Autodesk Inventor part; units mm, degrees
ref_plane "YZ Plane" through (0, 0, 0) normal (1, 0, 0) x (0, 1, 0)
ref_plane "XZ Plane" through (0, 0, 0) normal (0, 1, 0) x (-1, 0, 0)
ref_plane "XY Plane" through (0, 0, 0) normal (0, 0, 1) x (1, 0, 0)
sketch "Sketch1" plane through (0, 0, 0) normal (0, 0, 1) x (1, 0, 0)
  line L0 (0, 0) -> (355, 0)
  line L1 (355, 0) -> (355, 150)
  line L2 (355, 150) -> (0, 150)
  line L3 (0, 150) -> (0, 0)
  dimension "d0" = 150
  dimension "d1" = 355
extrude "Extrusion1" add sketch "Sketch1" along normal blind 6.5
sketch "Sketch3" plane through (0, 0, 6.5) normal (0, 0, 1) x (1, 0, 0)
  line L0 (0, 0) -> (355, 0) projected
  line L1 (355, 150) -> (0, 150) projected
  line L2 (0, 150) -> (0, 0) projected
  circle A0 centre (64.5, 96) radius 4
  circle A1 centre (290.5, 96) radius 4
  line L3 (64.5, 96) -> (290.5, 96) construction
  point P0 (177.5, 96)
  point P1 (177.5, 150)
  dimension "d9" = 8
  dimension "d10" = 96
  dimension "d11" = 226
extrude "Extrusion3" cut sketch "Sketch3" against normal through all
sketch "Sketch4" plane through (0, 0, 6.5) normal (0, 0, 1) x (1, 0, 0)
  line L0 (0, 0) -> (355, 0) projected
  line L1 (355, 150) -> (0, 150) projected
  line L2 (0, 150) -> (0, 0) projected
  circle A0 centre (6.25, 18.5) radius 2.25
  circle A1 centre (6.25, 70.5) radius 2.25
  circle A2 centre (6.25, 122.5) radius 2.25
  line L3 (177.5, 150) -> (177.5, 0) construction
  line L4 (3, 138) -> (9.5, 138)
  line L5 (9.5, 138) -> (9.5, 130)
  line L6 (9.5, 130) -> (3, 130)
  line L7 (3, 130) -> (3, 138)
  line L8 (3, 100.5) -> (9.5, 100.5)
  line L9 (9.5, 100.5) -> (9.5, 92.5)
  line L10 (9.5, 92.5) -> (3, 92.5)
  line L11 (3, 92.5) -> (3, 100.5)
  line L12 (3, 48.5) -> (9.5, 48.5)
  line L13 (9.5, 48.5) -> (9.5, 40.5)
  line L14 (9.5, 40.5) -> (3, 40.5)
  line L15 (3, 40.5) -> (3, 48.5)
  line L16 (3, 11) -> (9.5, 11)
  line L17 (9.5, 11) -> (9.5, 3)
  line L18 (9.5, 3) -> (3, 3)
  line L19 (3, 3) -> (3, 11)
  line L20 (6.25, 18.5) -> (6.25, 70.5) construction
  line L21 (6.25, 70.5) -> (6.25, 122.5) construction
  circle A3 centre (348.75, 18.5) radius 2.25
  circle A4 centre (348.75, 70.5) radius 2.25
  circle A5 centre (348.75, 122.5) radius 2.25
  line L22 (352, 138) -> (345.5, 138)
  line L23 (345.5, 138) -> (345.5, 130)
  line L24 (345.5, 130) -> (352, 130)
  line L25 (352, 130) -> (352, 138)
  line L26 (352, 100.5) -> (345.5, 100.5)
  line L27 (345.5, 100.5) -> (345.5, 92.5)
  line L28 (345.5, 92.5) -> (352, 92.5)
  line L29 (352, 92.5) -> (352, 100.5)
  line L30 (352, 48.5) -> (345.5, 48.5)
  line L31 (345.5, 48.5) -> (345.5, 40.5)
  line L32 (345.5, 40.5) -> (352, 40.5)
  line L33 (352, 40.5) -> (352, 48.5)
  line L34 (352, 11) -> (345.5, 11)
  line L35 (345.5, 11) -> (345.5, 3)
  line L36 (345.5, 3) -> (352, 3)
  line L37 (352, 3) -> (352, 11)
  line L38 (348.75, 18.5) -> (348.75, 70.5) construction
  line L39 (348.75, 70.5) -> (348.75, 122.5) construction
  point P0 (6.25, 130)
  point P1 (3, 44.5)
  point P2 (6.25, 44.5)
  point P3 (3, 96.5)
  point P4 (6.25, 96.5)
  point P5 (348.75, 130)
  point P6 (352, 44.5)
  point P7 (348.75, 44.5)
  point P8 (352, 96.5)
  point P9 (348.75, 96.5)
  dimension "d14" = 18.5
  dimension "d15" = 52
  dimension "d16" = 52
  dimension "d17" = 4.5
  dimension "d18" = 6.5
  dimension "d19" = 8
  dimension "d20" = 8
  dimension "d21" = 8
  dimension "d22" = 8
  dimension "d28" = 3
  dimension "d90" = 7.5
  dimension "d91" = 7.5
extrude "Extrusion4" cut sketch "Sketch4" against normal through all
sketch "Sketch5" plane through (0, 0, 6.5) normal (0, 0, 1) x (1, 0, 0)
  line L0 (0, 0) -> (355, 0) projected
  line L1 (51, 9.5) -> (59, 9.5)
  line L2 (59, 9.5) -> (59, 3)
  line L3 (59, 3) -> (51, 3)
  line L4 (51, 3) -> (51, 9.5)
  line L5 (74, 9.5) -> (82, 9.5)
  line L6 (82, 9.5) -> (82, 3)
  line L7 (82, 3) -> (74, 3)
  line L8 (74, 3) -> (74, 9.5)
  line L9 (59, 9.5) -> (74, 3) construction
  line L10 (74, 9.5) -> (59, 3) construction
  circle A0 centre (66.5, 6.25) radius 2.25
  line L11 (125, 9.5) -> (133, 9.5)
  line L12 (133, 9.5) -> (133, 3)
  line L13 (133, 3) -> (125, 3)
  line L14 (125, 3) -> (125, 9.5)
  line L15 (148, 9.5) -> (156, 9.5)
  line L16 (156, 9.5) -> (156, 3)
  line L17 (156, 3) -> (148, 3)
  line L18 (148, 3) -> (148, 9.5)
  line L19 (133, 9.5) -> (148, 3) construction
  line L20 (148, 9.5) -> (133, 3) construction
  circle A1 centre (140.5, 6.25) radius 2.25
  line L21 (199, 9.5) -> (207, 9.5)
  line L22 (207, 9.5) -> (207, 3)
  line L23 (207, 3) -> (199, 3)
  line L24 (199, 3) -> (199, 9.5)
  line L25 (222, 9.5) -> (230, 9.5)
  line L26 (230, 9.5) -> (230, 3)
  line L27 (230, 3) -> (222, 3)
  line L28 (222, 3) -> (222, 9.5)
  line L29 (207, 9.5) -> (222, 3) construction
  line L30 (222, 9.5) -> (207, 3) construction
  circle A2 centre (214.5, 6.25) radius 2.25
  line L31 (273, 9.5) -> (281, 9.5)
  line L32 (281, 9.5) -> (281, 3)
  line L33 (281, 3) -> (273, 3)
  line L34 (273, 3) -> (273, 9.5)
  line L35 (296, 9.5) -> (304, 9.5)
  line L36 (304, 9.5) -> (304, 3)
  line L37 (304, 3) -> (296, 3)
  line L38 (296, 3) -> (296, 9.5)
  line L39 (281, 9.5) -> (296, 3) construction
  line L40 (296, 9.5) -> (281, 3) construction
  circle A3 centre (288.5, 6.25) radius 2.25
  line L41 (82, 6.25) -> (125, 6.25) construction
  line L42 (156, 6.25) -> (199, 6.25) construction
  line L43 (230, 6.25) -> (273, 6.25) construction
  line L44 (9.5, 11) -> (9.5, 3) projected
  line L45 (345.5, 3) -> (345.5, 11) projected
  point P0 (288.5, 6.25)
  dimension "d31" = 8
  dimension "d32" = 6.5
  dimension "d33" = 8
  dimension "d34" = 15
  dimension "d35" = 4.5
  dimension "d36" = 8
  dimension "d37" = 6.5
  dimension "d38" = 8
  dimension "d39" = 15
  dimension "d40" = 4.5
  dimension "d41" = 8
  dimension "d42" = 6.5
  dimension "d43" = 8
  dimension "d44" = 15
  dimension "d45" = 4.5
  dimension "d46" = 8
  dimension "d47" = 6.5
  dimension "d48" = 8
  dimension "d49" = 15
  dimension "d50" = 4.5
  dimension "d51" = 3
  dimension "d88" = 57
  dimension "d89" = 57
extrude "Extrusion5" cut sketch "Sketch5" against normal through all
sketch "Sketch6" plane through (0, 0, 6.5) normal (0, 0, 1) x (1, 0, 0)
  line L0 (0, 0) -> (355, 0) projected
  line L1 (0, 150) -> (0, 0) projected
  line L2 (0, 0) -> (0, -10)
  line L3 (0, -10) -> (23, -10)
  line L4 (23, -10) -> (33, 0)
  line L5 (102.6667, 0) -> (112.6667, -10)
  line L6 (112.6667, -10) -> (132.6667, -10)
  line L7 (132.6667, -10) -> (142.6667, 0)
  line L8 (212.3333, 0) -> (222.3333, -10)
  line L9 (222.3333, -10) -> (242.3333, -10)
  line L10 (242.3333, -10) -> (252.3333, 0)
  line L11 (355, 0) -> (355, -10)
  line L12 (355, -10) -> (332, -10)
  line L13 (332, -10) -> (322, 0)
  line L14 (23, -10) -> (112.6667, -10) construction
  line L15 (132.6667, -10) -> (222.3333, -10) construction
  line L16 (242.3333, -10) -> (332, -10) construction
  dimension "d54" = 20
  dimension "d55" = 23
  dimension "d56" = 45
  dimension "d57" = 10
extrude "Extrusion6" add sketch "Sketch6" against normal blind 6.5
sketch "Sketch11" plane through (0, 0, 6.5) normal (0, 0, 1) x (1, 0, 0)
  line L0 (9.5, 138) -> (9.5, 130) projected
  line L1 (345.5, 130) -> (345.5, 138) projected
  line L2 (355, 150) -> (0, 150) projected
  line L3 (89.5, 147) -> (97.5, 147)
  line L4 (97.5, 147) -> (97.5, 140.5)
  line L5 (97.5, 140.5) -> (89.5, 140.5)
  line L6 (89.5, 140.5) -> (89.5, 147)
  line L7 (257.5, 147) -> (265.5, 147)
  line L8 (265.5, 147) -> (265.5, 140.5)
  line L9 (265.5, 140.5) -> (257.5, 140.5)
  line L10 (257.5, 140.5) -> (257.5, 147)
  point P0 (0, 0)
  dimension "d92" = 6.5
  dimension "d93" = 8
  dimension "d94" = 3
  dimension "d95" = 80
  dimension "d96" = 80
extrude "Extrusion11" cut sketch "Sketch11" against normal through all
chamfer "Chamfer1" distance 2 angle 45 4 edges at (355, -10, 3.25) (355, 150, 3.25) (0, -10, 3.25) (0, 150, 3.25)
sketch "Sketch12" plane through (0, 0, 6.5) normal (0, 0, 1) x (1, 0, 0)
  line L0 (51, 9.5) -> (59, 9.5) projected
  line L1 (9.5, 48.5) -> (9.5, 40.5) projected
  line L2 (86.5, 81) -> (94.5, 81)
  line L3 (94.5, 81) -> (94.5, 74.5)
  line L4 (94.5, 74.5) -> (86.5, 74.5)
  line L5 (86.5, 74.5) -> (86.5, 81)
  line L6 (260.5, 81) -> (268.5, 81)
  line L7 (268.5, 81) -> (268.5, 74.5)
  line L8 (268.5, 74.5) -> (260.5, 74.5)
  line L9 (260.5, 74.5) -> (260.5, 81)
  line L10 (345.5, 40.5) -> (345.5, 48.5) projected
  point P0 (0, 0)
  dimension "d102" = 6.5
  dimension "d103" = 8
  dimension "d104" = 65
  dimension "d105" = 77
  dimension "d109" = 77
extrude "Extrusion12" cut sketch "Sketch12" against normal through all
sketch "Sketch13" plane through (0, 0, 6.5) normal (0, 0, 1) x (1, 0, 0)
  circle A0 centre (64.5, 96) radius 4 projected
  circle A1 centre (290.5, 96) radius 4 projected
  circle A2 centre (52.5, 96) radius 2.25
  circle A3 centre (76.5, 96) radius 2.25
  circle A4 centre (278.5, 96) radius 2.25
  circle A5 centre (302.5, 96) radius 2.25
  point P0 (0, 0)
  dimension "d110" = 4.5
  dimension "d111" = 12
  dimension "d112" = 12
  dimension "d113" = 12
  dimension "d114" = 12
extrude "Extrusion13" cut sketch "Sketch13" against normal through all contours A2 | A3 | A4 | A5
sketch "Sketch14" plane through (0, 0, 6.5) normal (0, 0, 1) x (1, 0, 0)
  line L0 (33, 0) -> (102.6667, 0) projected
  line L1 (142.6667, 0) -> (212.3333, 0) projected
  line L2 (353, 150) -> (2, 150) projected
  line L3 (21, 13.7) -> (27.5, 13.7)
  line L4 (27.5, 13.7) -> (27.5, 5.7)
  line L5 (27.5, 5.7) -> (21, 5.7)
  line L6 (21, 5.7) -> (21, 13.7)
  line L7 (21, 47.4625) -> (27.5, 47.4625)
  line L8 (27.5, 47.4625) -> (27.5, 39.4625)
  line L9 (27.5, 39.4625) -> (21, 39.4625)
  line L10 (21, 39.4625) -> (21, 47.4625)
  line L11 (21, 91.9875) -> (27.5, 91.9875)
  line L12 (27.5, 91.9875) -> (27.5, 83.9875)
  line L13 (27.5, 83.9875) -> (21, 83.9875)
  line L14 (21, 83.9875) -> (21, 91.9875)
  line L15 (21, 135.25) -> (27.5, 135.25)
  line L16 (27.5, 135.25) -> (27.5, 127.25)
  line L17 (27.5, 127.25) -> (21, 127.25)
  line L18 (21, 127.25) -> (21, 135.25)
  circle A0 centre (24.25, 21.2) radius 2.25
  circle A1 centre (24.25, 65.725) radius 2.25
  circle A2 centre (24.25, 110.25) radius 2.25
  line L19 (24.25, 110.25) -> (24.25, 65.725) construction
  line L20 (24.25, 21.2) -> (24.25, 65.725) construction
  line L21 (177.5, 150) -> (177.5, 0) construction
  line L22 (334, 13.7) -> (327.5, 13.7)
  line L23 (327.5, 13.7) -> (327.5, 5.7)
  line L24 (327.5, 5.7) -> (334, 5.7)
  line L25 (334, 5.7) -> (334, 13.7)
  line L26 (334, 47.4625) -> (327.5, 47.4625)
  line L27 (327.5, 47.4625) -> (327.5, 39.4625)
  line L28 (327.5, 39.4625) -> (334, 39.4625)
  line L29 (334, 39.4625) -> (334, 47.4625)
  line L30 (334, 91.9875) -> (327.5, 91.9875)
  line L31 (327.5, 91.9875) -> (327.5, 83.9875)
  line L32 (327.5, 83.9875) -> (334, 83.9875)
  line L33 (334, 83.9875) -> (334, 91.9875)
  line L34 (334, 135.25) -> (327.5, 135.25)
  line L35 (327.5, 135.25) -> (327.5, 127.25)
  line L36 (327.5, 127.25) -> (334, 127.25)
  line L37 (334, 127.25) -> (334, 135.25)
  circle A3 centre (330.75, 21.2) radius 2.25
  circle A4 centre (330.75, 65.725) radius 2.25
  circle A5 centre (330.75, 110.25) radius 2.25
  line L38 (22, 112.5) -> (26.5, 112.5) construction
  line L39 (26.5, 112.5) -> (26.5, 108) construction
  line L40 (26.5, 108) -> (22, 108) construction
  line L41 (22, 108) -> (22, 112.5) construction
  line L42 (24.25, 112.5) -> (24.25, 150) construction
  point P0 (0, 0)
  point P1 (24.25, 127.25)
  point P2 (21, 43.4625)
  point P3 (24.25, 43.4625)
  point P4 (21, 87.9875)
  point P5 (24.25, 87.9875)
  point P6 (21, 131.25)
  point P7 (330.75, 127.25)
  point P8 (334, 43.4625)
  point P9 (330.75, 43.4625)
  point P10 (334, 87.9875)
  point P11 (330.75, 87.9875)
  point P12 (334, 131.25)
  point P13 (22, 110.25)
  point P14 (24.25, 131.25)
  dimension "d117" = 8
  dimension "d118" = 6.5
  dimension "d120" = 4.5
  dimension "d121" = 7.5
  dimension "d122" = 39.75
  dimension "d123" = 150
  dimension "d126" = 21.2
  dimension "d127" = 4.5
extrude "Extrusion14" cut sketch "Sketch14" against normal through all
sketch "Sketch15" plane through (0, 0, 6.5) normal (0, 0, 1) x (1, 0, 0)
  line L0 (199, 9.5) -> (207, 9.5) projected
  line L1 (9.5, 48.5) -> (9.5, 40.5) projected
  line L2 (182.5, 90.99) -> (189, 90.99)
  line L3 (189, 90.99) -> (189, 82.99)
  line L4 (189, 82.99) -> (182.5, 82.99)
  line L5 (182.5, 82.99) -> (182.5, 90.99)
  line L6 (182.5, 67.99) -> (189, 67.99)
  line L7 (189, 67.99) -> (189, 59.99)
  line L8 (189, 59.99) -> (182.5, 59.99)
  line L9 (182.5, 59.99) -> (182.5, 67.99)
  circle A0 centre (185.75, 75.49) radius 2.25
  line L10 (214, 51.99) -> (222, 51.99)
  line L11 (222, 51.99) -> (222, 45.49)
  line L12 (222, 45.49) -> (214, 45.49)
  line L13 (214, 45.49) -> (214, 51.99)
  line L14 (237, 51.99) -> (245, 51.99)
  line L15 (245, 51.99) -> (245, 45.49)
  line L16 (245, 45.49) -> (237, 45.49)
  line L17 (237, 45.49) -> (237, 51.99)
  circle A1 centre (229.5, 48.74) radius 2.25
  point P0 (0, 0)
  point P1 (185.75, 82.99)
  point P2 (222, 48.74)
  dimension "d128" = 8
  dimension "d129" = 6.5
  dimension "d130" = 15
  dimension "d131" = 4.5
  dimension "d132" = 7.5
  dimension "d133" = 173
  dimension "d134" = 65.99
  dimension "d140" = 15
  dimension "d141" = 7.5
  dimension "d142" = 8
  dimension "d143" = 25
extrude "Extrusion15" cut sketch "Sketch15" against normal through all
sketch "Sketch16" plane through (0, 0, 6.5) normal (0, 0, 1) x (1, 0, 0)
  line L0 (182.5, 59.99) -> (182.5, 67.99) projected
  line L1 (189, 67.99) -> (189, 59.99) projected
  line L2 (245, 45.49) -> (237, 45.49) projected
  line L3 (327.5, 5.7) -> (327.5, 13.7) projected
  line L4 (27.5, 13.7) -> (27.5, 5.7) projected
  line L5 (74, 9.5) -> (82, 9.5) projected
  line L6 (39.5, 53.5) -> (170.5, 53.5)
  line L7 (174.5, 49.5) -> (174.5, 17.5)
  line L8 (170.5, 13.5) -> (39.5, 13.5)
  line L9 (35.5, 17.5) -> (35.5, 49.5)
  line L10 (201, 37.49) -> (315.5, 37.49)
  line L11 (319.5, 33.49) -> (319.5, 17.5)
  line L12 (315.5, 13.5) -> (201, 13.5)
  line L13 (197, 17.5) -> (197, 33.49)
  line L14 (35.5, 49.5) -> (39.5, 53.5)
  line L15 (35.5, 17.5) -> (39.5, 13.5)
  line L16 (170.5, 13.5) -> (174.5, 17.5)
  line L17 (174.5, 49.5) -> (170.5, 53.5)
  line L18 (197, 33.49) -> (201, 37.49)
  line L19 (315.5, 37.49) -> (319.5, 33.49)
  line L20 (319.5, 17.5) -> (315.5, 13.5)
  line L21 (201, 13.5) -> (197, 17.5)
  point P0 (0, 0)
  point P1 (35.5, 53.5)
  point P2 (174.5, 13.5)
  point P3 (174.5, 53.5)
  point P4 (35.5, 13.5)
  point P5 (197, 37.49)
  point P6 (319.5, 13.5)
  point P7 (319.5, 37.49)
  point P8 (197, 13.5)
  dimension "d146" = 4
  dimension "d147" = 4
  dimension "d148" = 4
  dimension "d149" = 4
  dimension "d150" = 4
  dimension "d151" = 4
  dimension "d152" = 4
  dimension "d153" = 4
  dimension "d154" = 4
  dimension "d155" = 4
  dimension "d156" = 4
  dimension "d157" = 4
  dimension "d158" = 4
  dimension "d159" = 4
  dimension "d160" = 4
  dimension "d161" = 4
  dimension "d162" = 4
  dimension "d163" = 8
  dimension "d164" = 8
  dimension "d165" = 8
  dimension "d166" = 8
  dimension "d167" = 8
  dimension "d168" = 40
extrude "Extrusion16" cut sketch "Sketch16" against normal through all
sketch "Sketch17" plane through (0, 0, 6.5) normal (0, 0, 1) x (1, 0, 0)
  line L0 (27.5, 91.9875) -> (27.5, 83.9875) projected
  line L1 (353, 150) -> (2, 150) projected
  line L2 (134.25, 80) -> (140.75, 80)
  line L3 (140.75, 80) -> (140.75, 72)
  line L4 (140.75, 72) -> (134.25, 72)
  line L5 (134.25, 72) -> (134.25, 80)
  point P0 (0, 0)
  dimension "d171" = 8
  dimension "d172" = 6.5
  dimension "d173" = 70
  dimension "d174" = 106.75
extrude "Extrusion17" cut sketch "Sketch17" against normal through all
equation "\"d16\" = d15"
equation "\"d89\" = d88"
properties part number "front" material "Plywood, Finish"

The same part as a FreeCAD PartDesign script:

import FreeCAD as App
import Part
import Sketcher


def edges_at(feature, points):
    """Names of the edges that pass closest to the given points."""
    edges = feature.Shape.Edges
    near = lambda p: min(range(len(edges)), key=lambda i: edges[i].distToShape(Part.Vertex(*p))[0])
    return sorted({f"Edge{near(p) + 1}" for p in points})


def add_polygon(sketch, points):
    """Adds a closed chain of lines whose ends are joined by coincident constraints."""
    first, n = sketch.GeometryCount, len(points)
    for a, b in zip(points, points[1:] + points[:1]):
        sketch.addGeometry(Part.LineSegment(App.Vector(*a, 0), App.Vector(*b, 0)), False)
    for i in range(n):
        sketch.addConstraint(Sketcher.Constraint("Coincident", first + i, 2, first + (i + 1) % n, 1))

doc = App.newDocument("Part")
body = doc.addObject("PartDesign::Body", "Body")

sketch1 = body.newObject("Sketcher::SketchObject", "Sketch")
sketch1.AttachmentSupport = (doc.getObject("XY_Plane"), [""])
sketch1.MapMode = "FlatFace"
add_polygon(sketch1, [(0, 150), (0, 0), (355, 0), (355, 150)])
sketch1.addConstraint([
    Sketcher.Constraint("Vertical", 0),
    Sketcher.Constraint("Horizontal", 1),
    Sketcher.Constraint("Vertical", 2),
    Sketcher.Constraint("Horizontal", 3),
    Sketcher.Constraint("Coincident", 0, 2, -1, 1),
    Sketcher.Constraint("DistanceX", 1, 1, 1, 2, 355.0),
    Sketcher.Constraint("DistanceY", 0, 2, 0, 1, 150.0),
])
pad1 = body.newObject("PartDesign::Pad", "Pad")
pad1.Profile = sketch1
pad1.Length = 6.5

sketch2 = body.newObject("Sketcher::SketchObject", "Sketch001")
sketch2.AttachmentSupport = (doc.getObject("XY_Plane"), [""])
sketch2.MapMode = "FlatFace"
sketch2.AttachmentOffset = App.Placement(App.Vector(0, 0, 6.5), App.Rotation())
sketch2.addGeometry([
    Part.Circle(App.Vector(64.5, 96, 0), App.Vector(0, 0, 1), 4),
    Part.Circle(App.Vector(290.5, 96, 0), App.Vector(0, 0, 1), 4),
], False)
sketch2.addConstraint([
    Sketcher.Constraint("Equal", 0, 1),
    Sketcher.Constraint("Horizontal", 0, 3, 1, 3),
    Sketcher.Constraint("Diameter", 0, 8.0),
    Sketcher.Constraint("DistanceY", -1, 1, 0, 3, 96.0),
    Sketcher.Constraint("DistanceX", 0, 3, 1, 3, 226.0),
    Sketcher.Constraint("DistanceX", -1, 1, 0, 3, 64.5),
])
pocket1 = body.newObject("PartDesign::Pocket", "Pocket")
pocket1.Profile = sketch2
pocket1.Type = "ThroughAll"

sketch3 = body.newObject("Sketcher::SketchObject", "Sketch002")
sketch3.AttachmentSupport = (doc.getObject("XY_Plane"), [""])
sketch3.MapMode = "FlatFace"
sketch3.AttachmentOffset = App.Placement(App.Vector(0, 0, 6.5), App.Rotation())
sketch3.addGeometry(Part.Circle(App.Vector(6.2, 18.5, 0), App.Vector(0, 0, 1), 2.2), False)
sketch3.addGeometry(Part.Circle(App.Vector(6.2, 70.5, 0), App.Vector(0, 0, 1), 2.2), False)
sketch3.addGeometry(Part.Circle(App.Vector(6.2, 122.5, 0), App.Vector(0, 0, 1), 2.2), False)
add_polygon(sketch3, [(9.5, 138), (3, 138), (3, 130), (9.5, 130)])
add_polygon(sketch3, [(9.5, 100.5), (3, 100.5), (3, 92.5), (9.5, 92.5)])
add_polygon(sketch3, [(9.5, 48.5), (3, 48.5), (3, 40.5), (9.5, 40.5)])
add_polygon(sketch3, [(9.5, 11), (3, 11), (3, 3), (9.5, 3)])
sketch3.addGeometry(Part.Circle(App.Vector(348.8, 18.5, 0), App.Vector(0, 0, 1), 2.2), False)
sketch3.addGeometry(Part.Circle(App.Vector(348.8, 70.5, 0), App.Vector(0, 0, 1), 2.2), False)
sketch3.addGeometry(Part.Circle(App.Vector(348.8, 122.5, 0), App.Vector(0, 0, 1), 2.2), False)
add_polygon(sketch3, [(352, 130), (352, 138), (345.5, 138), (345.5, 130)])
add_polygon(sketch3, [(352, 92.5), (352, 100.5), (345.5, 100.5), (345.5, 92.5)])
add_polygon(sketch3, [(352, 40.5), (352, 48.5), (345.5, 48.5), (345.5, 40.5)])
add_polygon(sketch3, [(352, 3), (352, 11), (345.5, 11), (345.5, 3)])
sketch3.addConstraint([
    Sketcher.Constraint("Horizontal", 3),
    Sketcher.Constraint("Vertical", 4),
    Sketcher.Constraint("Horizontal", 5),
    Sketcher.Constraint("Vertical", 6),
    Sketcher.Constraint("Horizontal", 7),
    Sketcher.Constraint("Vertical", 8),
    Sketcher.Constraint("Horizontal", 9),
    Sketcher.Constraint("Vertical", 10),
    Sketcher.Constraint("Horizontal", 11),
    Sketcher.Constraint("Vertical", 12),
    Sketcher.Constraint("Horizontal", 13),
    Sketcher.Constraint("Vertical", 14),
    Sketcher.Constraint("Horizontal", 15),
    Sketcher.Constraint("Vertical", 16),
    Sketcher.Constraint("Horizontal", 17),
    Sketcher.Constraint("Vertical", 18),
    Sketcher.Constraint("Vertical", 22),
    Sketcher.Constraint("Horizontal", 23),
    Sketcher.Constraint("Vertical", 24),
    Sketcher.Constraint("Horizontal", 25),
    Sketcher.Constraint("Vertical", 26),
    Sketcher.Constraint("Horizontal", 27),
    Sketcher.Constraint("Vertical", 28),
    Sketcher.Constraint("Horizontal", 29),
    Sketcher.Constraint("Vertical", 30),
    Sketcher.Constraint("Horizontal", 31),
    Sketcher.Constraint("Vertical", 32),
    Sketcher.Constraint("Horizontal", 33),
    Sketcher.Constraint("Vertical", 34),
    Sketcher.Constraint("Horizontal", 35),
    Sketcher.Constraint("Vertical", 36),
    Sketcher.Constraint("Horizontal", 37),
    Sketcher.Constraint("Equal", 0, 1),
    Sketcher.Constraint("Equal", 1, 2),
    Sketcher.Constraint("Equal", 2, 19),
    Sketcher.Constraint("Equal", 19, 20),
    Sketcher.Constraint("Equal", 20, 21),
    Sketcher.Constraint("Horizontal", 0, 3, 19, 3),
    Sketcher.Constraint("Horizontal", 1, 3, 20, 3),
    Sketcher.Constraint("Horizontal", 2, 3, 21, 3),
    Sketcher.Constraint("Horizontal", 6, 2, 22, 2),
    Sketcher.Constraint("Horizontal", 5, 2, 24, 2),
    Sketcher.Constraint("Horizontal", 10, 2, 26, 2),
    Sketcher.Constraint("Horizontal", 9, 2, 28, 2),
    Sketcher.Constraint("Horizontal", 14, 2, 30, 2),
    Sketcher.Constraint("Horizontal", 13, 2, 32, 2),
    Sketcher.Constraint("Horizontal", 18, 2, 34, 2),
    Sketcher.Constraint("Horizontal", 17, 2, 36, 2),
    Sketcher.Constraint("Vertical", 0, 3, 1, 3),
    Sketcher.Constraint("Vertical", 1, 3, 2, 3),
    Sketcher.Constraint("Vertical", 19, 3, 20, 3),
    Sketcher.Constraint("Vertical", 20, 3, 21, 3),
    Sketcher.Constraint("Vertical", 4, 2, 7, 2),
    Sketcher.Constraint("Vertical", 6, 2, 9, 2),
    Sketcher.Constraint("Vertical", 8, 2, 11, 2),
    Sketcher.Constraint("Vertical", 10, 2, 13, 2),
    Sketcher.Constraint("Vertical", 12, 2, 15, 2),
    Sketcher.Constraint("Vertical", 14, 2, 17, 2),
    Sketcher.Constraint("Vertical", 25, 2, 26, 2),
    Sketcher.Constraint("Vertical", 24, 2, 27, 2),
    Sketcher.Constraint("Vertical", 29, 2, 30, 2),
    Sketcher.Constraint("Vertical", 28, 2, 31, 2),
    Sketcher.Constraint("Vertical", 33, 2, 34, 2),
    Sketcher.Constraint("Vertical", 32, 2, 35, 2),
    Sketcher.Constraint("Equal", 17, 23),
    Sketcher.Constraint("Equal", 6, 8),
    Sketcher.Constraint("Equal", 10, 12),
    Sketcher.Constraint("Equal", 14, 16),
    Sketcher.Constraint("Diameter", 0, 4.5),
    Sketcher.Constraint("DistanceY", 4, 2, 4, 1, 8.0),
    Sketcher.Constraint("DistanceX", 3, 2, 3, 1, 6.5),
    Sketcher.Constraint("DistanceX", -1, 1, 3, 2, 3.0),
    Sketcher.Constraint("DistanceY", -1, 1, 16, 2, 3.0),
    Sketcher.Constraint("DistanceY", 0, 3, 1, 3, 52.0),
    Sketcher.Constraint("DistanceY", 1, 3, 2, 3, 52.0),
    Sketcher.Constraint("DistanceY", 11, 2, 7, 2, 52.0),
    Sketcher.Constraint("DistanceY", -1, 1, 0, 3, 18.5),
    Sketcher.Constraint("DistanceY", 2, 3, 4, 2, 7.5),
    Sketcher.Constraint("DistanceX", -1, 1, 22, 2, 352.0),
    Sketcher.Constraint("DistanceY", 7, 2, 2, 3, 22.0),
    Sketcher.Constraint("DistanceX", 0, 3, 19, 3, 342.5),
    Sketcher.Constraint("DistanceX", -1, 1, 0, 3, 6.25),
])
pocket2 = body.newObject("PartDesign::Pocket", "Pocket001")
pocket2.Profile = sketch3
pocket2.Type = "ThroughAll"

sketch4 = body.newObject("Sketcher::SketchObject", "Sketch003")
sketch4.AttachmentSupport = (doc.getObject("XY_Plane"), [""])
sketch4.MapMode = "FlatFace"
sketch4.AttachmentOffset = App.Placement(App.Vector(0, 0, 6.5), App.Rotation())
add_polygon(sketch4, [(59, 9.5), (51, 9.5), (51, 3), (59, 3)])
add_polygon(sketch4, [(82, 9.5), (74, 9.5), (74, 3), (82, 3)])
sketch4.addGeometry(Part.Circle(App.Vector(66.5, 6.2, 0), App.Vector(0, 0, 1), 2.2), False)
add_polygon(sketch4, [(133, 9.5), (125, 9.5), (125, 3), (133, 3)])
add_polygon(sketch4, [(156, 9.5), (148, 9.5), (148, 3), (156, 3)])
sketch4.addGeometry(Part.Circle(App.Vector(140.5, 6.2, 0), App.Vector(0, 0, 1), 2.2), False)
add_polygon(sketch4, [(207, 9.5), (199, 9.5), (199, 3), (207, 3)])
add_polygon(sketch4, [(230, 9.5), (222, 9.5), (222, 3), (230, 3)])
sketch4.addGeometry(Part.Circle(App.Vector(214.5, 6.2, 0), App.Vector(0, 0, 1), 2.2), False)
add_polygon(sketch4, [(281, 9.5), (273, 9.5), (273, 3), (281, 3)])
add_polygon(sketch4, [(304, 9.5), (296, 9.5), (296, 3), (304, 3)])
sketch4.addGeometry(Part.Circle(App.Vector(288.5, 6.2, 0), App.Vector(0, 0, 1), 2.2), False)
sketch4.addConstraint([
    Sketcher.Constraint("Horizontal", 0),
    Sketcher.Constraint("Vertical", 1),
    Sketcher.Constraint("Horizontal", 2),
    Sketcher.Constraint("Vertical", 3),
    Sketcher.Constraint("Horizontal", 4),
    Sketcher.Constraint("Vertical", 5),
    Sketcher.Constraint("Horizontal", 6),
    Sketcher.Constraint("Vertical", 7),
    Sketcher.Constraint("Horizontal", 9),
    Sketcher.Constraint("Vertical", 10),
    Sketcher.Constraint("Horizontal", 11),
    Sketcher.Constraint("Vertical", 12),
    Sketcher.Constraint("Horizontal", 13),
    Sketcher.Constraint("Vertical", 14),
    Sketcher.Constraint("Horizontal", 15),
    Sketcher.Constraint("Vertical", 16),
    Sketcher.Constraint("Horizontal", 18),
    Sketcher.Constraint("Vertical", 19),
    Sketcher.Constraint("Horizontal", 20),
    Sketcher.Constraint("Vertical", 21),
    Sketcher.Constraint("Horizontal", 22),
    Sketcher.Constraint("Vertical", 23),
    Sketcher.Constraint("Horizontal", 24),
    Sketcher.Constraint("Vertical", 25),
    Sketcher.Constraint("Horizontal", 27),
    Sketcher.Constraint("Vertical", 28),
    Sketcher.Constraint("Horizontal", 29),
    Sketcher.Constraint("Vertical", 30),
    Sketcher.Constraint("Horizontal", 31),
    Sketcher.Constraint("Vertical", 32),
    Sketcher.Constraint("Horizontal", 33),
    Sketcher.Constraint("Vertical", 34),
    Sketcher.Constraint("Equal", 8, 17),
    Sketcher.Constraint("Equal", 17, 26),
    Sketcher.Constraint("Equal", 26, 35),
    Sketcher.Constraint("Horizontal", 8, 3, 17, 3),
    Sketcher.Constraint("Horizontal", 17, 3, 26, 3),
    Sketcher.Constraint("Horizontal", 26, 3, 35, 3),
    Sketcher.Constraint("Horizontal", 3, 2, 4, 2),
    Sketcher.Constraint("Horizontal", 2, 2, 5, 2),
    Sketcher.Constraint("Horizontal", 7, 2, 9, 2),
    Sketcher.Constraint("Horizontal", 6, 2, 10, 2),
    Sketcher.Constraint("Horizontal", 12, 2, 13, 2),
    Sketcher.Constraint("Horizontal", 11, 2, 14, 2),
    Sketcher.Constraint("Horizontal", 16, 2, 18, 2),
    Sketcher.Constraint("Horizontal", 15, 2, 19, 2),
    Sketcher.Constraint("Horizontal", 21, 2, 22, 2),
    Sketcher.Constraint("Horizontal", 20, 2, 23, 2),
    Sketcher.Constraint("Horizontal", 25, 2, 27, 2),
    Sketcher.Constraint("Horizontal", 24, 2, 28, 2),
    Sketcher.Constraint("Horizontal", 30, 2, 31, 2),
    Sketcher.Constraint("Horizontal", 29, 2, 32, 2),
    Sketcher.Constraint("Equal", 2, 4),
    Sketcher.Constraint("Equal", 6, 9),
    Sketcher.Constraint("Equal", 11, 13),
    Sketcher.Constraint("Equal", 15, 18),
    Sketcher.Constraint("Equal", 20, 22),
    Sketcher.Constraint("Equal", 24, 27),
    Sketcher.Constraint("Equal", 29, 31),
    Sketcher.Constraint("Diameter", 8, 4.5),
    Sketcher.Constraint("DistanceX", 0, 2, 0, 1, 8.0),
    Sketcher.Constraint("DistanceY", 1, 2, 1, 1, 6.5),
    Sketcher.Constraint("DistanceY", -1, 1, 1, 2, 3.0),
    Sketcher.Constraint("DistanceX", 3, 2, 4, 2, 15.0),
    Sketcher.Constraint("DistanceX", 12, 2, 13, 2, 15.0),
    Sketcher.Constraint("DistanceX", 21, 2, 22, 2, 15.0),
    Sketcher.Constraint("DistanceX", 30, 2, 31, 2, 15.0),
    Sketcher.Constraint("DistanceX", -1, 1, 0, 2, 51.0),
    Sketcher.Constraint("DistanceX", -1, 1, 9, 2, 125.0),
    Sketcher.Constraint("DistanceX", -1, 1, 18, 2, 199.0),
    Sketcher.Constraint("DistanceX", -1, 1, 27, 2, 273.0),
    Sketcher.Constraint("DistanceX", 8, 3, 17, 3, 74.0),
    Sketcher.Constraint("DistanceX", 17, 3, 26, 3, 74.0),
    Sketcher.Constraint("DistanceX", 26, 3, 35, 3, 74.0),
    Sketcher.Constraint("DistanceX", -1, 1, 8, 3, 66.5),
    Sketcher.Constraint("DistanceY", -1, 1, 8, 3, 6.25),
])
pocket3 = body.newObject("PartDesign::Pocket", "Pocket002")
pocket3.Profile = sketch4
pocket3.Type = "ThroughAll"

sketch5 = body.newObject("Sketcher::SketchObject", "Sketch004")
sketch5.AttachmentSupport = (doc.getObject("XY_Plane"), [""])
sketch5.MapMode = "FlatFace"
sketch5.AttachmentOffset = App.Placement(App.Vector(0, 0, 6.5), App.Rotation())
add_polygon(sketch5, [(355, 0), (322, 0), (332, -10), (355, -10)])
add_polygon(sketch5, [(252, 0), (212, 0), (222, -10), (242, -10)])
add_polygon(sketch5, [(143, 0), (103, 0), (113, -10), (133, -10)])
add_polygon(sketch5, [(33, 0), (0, 0), (0, -10), (23, -10)])
sketch5.addConstraint([
    Sketcher.Constraint("Horizontal", 0),
    Sketcher.Constraint("Horizontal", 2),
    Sketcher.Constraint("Vertical", 3),
    Sketcher.Constraint("Horizontal", 4),
    Sketcher.Constraint("Horizontal", 6),
    Sketcher.Constraint("Horizontal", 8),
    Sketcher.Constraint("Horizontal", 10),
    Sketcher.Constraint("Horizontal", 12),
    Sketcher.Constraint("Vertical", 13),
    Sketcher.Constraint("Horizontal", 14),
    Sketcher.Constraint("Coincident", 12, 2, -1, 1),
    Sketcher.Constraint("PointOnObject", 0, 2, -1),
    Sketcher.Constraint("PointOnObject", 4, 2, -1),
    Sketcher.Constraint("PointOnObject", 8, 2, -1),
    Sketcher.Constraint("Parallel", 1, 5),
    Sketcher.Constraint("Perpendicular", 5, 7),
    Sketcher.Constraint("Perpendicular", 7, 9),
    Sketcher.Constraint("Perpendicular", 9, 11),
    Sketcher.Constraint("Parallel", 11, 15),
    Sketcher.Constraint("Horizontal", 2, 2, 5, 2),
    Sketcher.Constraint("Horizontal", 6, 2, 9, 2),
    Sketcher.Constraint("Horizontal", 10, 2, 13, 2),
    Sketcher.Constraint("Equal", 4, 8),
    Sketcher.Constraint("Equal", 0, 12),
    Sketcher.Constraint("Equal", 2, 14),
    Sketcher.Constraint("DistanceX", 2, 1, 2, 2, 23.0),
    Sketcher.Constraint("DistanceX", 6, 1, 6, 2, 20.0),
    Sketcher.Constraint("DistanceY", 3, 1, 3, 2, 10.0),
    Sketcher.Constraint("DistanceX", -1, 1, 0, 2, 322.0),
    Sketcher.Constraint("DistanceX", -1, 1, 4, 2, 212.3333),
    Sketcher.Constraint("DistanceX", -1, 1, 8, 2, 102.6667),
])
pad2 = body.newObject("PartDesign::Pad", "Pad001")
pad2.Profile = sketch5
pad2.Length = 6.5
pad2.Reversed = True

sketch6 = body.newObject("Sketcher::SketchObject", "Sketch005")
sketch6.AttachmentSupport = (doc.getObject("XY_Plane"), [""])
sketch6.MapMode = "FlatFace"
sketch6.AttachmentOffset = App.Placement(App.Vector(0, 0, 6.5), App.Rotation())
add_polygon(sketch6, [(98, 147), (90, 147), (90, 140), (98, 140)])
add_polygon(sketch6, [(266, 147), (258, 147), (258, 140), (266, 140)])
sketch6.addConstraint([
    Sketcher.Constraint("Horizontal", 0),
    Sketcher.Constraint("Vertical", 1),
    Sketcher.Constraint("Horizontal", 2),
    Sketcher.Constraint("Vertical", 3),
    Sketcher.Constraint("Horizontal", 4),
    Sketcher.Constraint("Vertical", 5),
    Sketcher.Constraint("Horizontal", 6),
    Sketcher.Constraint("Vertical", 7),
    Sketcher.Constraint("Horizontal", 3, 2, 4, 2),
    Sketcher.Constraint("Horizontal", 2, 2, 5, 2),
    Sketcher.Constraint("Equal", 2, 4),
    Sketcher.Constraint("DistanceX", 0, 2, 0, 1, 8.0),
    Sketcher.Constraint("DistanceY", 1, 2, 1, 1, 6.5),
    Sketcher.Constraint("DistanceY", -1, 1, 0, 2, 147.0),
    Sketcher.Constraint("DistanceX", 3, 2, 4, 2, 160.0),
    Sketcher.Constraint("DistanceX", -1, 1, 0, 2, 89.5),
])
pocket4 = body.newObject("PartDesign::Pocket", "Pocket003")
pocket4.Profile = sketch6
pocket4.Type = "ThroughAll"
doc.recompute()

chamfer = body.newObject("PartDesign::Chamfer", "Chamfer")
chamfer.Base = (pocket4, edges_at(pocket4, [
    (355, -10, 3.25),
    (355, 150, 3.25),
    (0, -10, 3.25),
    (0, 150, 3.25),
]))
chamfer.Size = 2

sketch7 = body.newObject("Sketcher::SketchObject", "Sketch006")
sketch7.AttachmentSupport = (doc.getObject("XY_Plane"), [""])
sketch7.MapMode = "FlatFace"
sketch7.AttachmentOffset = App.Placement(App.Vector(0, 0, 6.5), App.Rotation())
add_polygon(sketch7, [(94, 81), (86, 81), (86, 74), (94, 74)])
add_polygon(sketch7, [(268, 81), (260, 81), (260, 74), (268, 74)])
sketch7.addConstraint([
    Sketcher.Constraint("Horizontal", 0),
    Sketcher.Constraint("Vertical", 1),
    Sketcher.Constraint("Horizontal", 2),
    Sketcher.Constraint("Vertical", 3),
    Sketcher.Constraint("Horizontal", 4),
    Sketcher.Constraint("Vertical", 5),
    Sketcher.Constraint("Horizontal", 6),
    Sketcher.Constraint("Vertical", 7),
    Sketcher.Constraint("Horizontal", 3, 2, 4, 2),
    Sketcher.Constraint("Horizontal", 2, 2, 5, 2),
    Sketcher.Constraint("Equal", 2, 4),
    Sketcher.Constraint("DistanceX", 0, 2, 0, 1, 8.0),
    Sketcher.Constraint("DistanceY", 1, 2, 1, 1, 6.5),
    Sketcher.Constraint("DistanceY", -1, 1, 0, 2, 81.0),
    Sketcher.Constraint("DistanceX", 3, 2, 4, 2, 166.0),
    Sketcher.Constraint("DistanceX", -1, 1, 0, 2, 86.5),
])
pocket5 = body.newObject("PartDesign::Pocket", "Pocket004")
pocket5.Profile = sketch7
pocket5.Type = "ThroughAll"

sketch8 = body.newObject("Sketcher::SketchObject", "Sketch007")
sketch8.AttachmentSupport = (doc.getObject("XY_Plane"), [""])
sketch8.MapMode = "FlatFace"
sketch8.AttachmentOffset = App.Placement(App.Vector(0, 0, 6.5), App.Rotation())
sketch8.addGeometry([
    Part.Circle(App.Vector(52.5, 96, 0), App.Vector(0, 0, 1), 2.2),
    Part.Circle(App.Vector(76.5, 96, 0), App.Vector(0, 0, 1), 2.2),
    Part.Circle(App.Vector(278.5, 96, 0), App.Vector(0, 0, 1), 2.2),
    Part.Circle(App.Vector(302.5, 96, 0), App.Vector(0, 0, 1), 2.2),
], False)
sketch8.addConstraint([
    Sketcher.Constraint("Equal", 0, 1),
    Sketcher.Constraint("Equal", 1, 2),
    Sketcher.Constraint("Equal", 2, 3),
    Sketcher.Constraint("Horizontal", 0, 3, 1, 3),
    Sketcher.Constraint("Horizontal", 1, 3, 2, 3),
    Sketcher.Constraint("Horizontal", 2, 3, 3, 3),
    Sketcher.Constraint("Diameter", 0, 4.5),
    Sketcher.Constraint("DistanceY", -1, 1, 0, 3, 96.0),
    Sketcher.Constraint("DistanceX", 0, 3, 1, 3, 24.0),
    Sketcher.Constraint("DistanceX", 1, 3, 2, 3, 202.0),
    Sketcher.Constraint("DistanceX", 2, 3, 3, 3, 24.0),
    Sketcher.Constraint("DistanceX", -1, 1, 0, 3, 52.5),
])
pocket6 = body.newObject("PartDesign::Pocket", "Pocket005")
pocket6.Profile = sketch8
pocket6.Type = "ThroughAll"

sketch9 = body.newObject("Sketcher::SketchObject", "Sketch008")
sketch9.AttachmentSupport = (doc.getObject("XY_Plane"), [""])
sketch9.MapMode = "FlatFace"
sketch9.AttachmentOffset = App.Placement(App.Vector(0, 0, 6.5), App.Rotation())
add_polygon(sketch9, [(27.5, 13.7), (21, 13.7), (21, 5.7), (27.5, 5.7)])
add_polygon(sketch9, [(27.5, 47.5), (21, 47.5), (21, 39.5), (27.5, 39.5)])
add_polygon(sketch9, [(27.5, 92), (21, 92), (21, 84), (27.5, 84)])
add_polygon(sketch9, [(27.5, 135.2), (21, 135.2), (21, 127.2), (27.5, 127.2)])
sketch9.addGeometry(Part.Circle(App.Vector(24.2, 21.2, 0), App.Vector(0, 0, 1), 2.2), False)
sketch9.addGeometry(Part.Circle(App.Vector(24.2, 65.7, 0), App.Vector(0, 0, 1), 2.2), False)
sketch9.addGeometry(Part.Circle(App.Vector(24.2, 110.2, 0), App.Vector(0, 0, 1), 2.2), False)
add_polygon(sketch9, [(334, 5.7), (334, 13.7), (327.5, 13.7), (327.5, 5.7)])
add_polygon(sketch9, [(334, 39.5), (334, 47.5), (327.5, 47.5), (327.5, 39.5)])
add_polygon(sketch9, [(334, 84), (334, 92), (327.5, 92), (327.5, 84)])
add_polygon(sketch9, [(334, 127.2), (334, 135.2), (327.5, 135.2), (327.5, 127.2)])
sketch9.addGeometry(Part.Circle(App.Vector(330.8, 21.2, 0), App.Vector(0, 0, 1), 2.2), False)
sketch9.addGeometry(Part.Circle(App.Vector(330.8, 65.7, 0), App.Vector(0, 0, 1), 2.2), False)
sketch9.addGeometry(Part.Circle(App.Vector(330.8, 110.2, 0), App.Vector(0, 0, 1), 2.2), False)
sketch9.addConstraint([
    Sketcher.Constraint("Horizontal", 0),
    Sketcher.Constraint("Vertical", 1),
    Sketcher.Constraint("Horizontal", 2),
    Sketcher.Constraint("Vertical", 3),
    Sketcher.Constraint("Horizontal", 4),
    Sketcher.Constraint("Vertical", 5),
    Sketcher.Constraint("Horizontal", 6),
    Sketcher.Constraint("Vertical", 7),
    Sketcher.Constraint("Horizontal", 8),
    Sketcher.Constraint("Vertical", 9),
    Sketcher.Constraint("Horizontal", 10),
    Sketcher.Constraint("Vertical", 11),
    Sketcher.Constraint("Horizontal", 12),
    Sketcher.Constraint("Vertical", 13),
    Sketcher.Constraint("Horizontal", 14),
    Sketcher.Constraint("Vertical", 15),
    Sketcher.Constraint("Vertical", 19),
    Sketcher.Constraint("Horizontal", 20),
    Sketcher.Constraint("Vertical", 21),
    Sketcher.Constraint("Horizontal", 22),
    Sketcher.Constraint("Vertical", 23),
    Sketcher.Constraint("Horizontal", 24),
    Sketcher.Constraint("Vertical", 25),
    Sketcher.Constraint("Horizontal", 26),
    Sketcher.Constraint("Vertical", 27),
    Sketcher.Constraint("Horizontal", 28),
    Sketcher.Constraint("Vertical", 29),
    Sketcher.Constraint("Horizontal", 30),
    Sketcher.Constraint("Vertical", 31),
    Sketcher.Constraint("Horizontal", 32),
    Sketcher.Constraint("Vertical", 33),
    Sketcher.Constraint("Horizontal", 34),
    Sketcher.Constraint("Equal", 16, 17),
    Sketcher.Constraint("Equal", 17, 18),
    Sketcher.Constraint("Equal", 18, 35),
    Sketcher.Constraint("Equal", 35, 36),
    Sketcher.Constraint("Equal", 36, 37),
    Sketcher.Constraint("Horizontal", 16, 3, 35, 3),
    Sketcher.Constraint("Horizontal", 17, 3, 36, 3),
    Sketcher.Constraint("Horizontal", 18, 3, 37, 3),
    Sketcher.Constraint("Horizontal", 3, 2, 19, 2),
    Sketcher.Constraint("Horizontal", 2, 2, 21, 2),
    Sketcher.Constraint("Horizontal", 7, 2, 23, 2),
    Sketcher.Constraint("Horizontal", 6, 2, 25, 2),
    Sketcher.Constraint("Horizontal", 11, 2, 27, 2),
    Sketcher.Constraint("Horizontal", 10, 2, 29, 2),
    Sketcher.Constraint("Horizontal", 15, 2, 31, 2),
    Sketcher.Constraint("Horizontal", 14, 2, 33, 2),
    Sketcher.Constraint("Vertical", 16, 3, 17, 3),
    Sketcher.Constraint("Vertical", 17, 3, 18, 3),
    Sketcher.Constraint("Vertical", 35, 3, 36, 3),
    Sketcher.Constraint("Vertical", 36, 3, 37, 3),
    Sketcher.Constraint("Vertical", 1, 2, 4, 2),
    Sketcher.Constraint("Vertical", 3, 2, 6, 2),
    Sketcher.Constraint("Vertical", 5, 2, 8, 2),
    Sketcher.Constraint("Vertical", 7, 2, 10, 2),
    Sketcher.Constraint("Vertical", 9, 2, 12, 2),
    Sketcher.Constraint("Vertical", 11, 2, 14, 2),
    Sketcher.Constraint("Vertical", 22, 2, 23, 2),
    Sketcher.Constraint("Vertical", 21, 2, 24, 2),
    Sketcher.Constraint("Vertical", 26, 2, 27, 2),
    Sketcher.Constraint("Vertical", 25, 2, 28, 2),
    Sketcher.Constraint("Vertical", 30, 2, 31, 2),
    Sketcher.Constraint("Vertical", 29, 2, 32, 2),
    Sketcher.Constraint("Equal", 14, 20),
    Sketcher.Constraint("Equal", 3, 5),
    Sketcher.Constraint("Equal", 7, 9),
    Sketcher.Constraint("Equal", 11, 13),
    Sketcher.Constraint("Diameter", 16, 4.5),
    Sketcher.Constraint("DistanceY", 1, 2, 1, 1, 8.0),
    Sketcher.Constraint("DistanceX", 0, 2, 0, 1, 6.5),
    Sketcher.Constraint("DistanceY", -1, 1, 16, 3, 21.2),
    Sketcher.Constraint("DistanceY", 0, 2, 16, 3, 7.5),
    Sketcher.Constraint("DistanceX", -1, 1, 0, 2, 21.0),
    Sketcher.Constraint("DistanceX", -1, 1, 19, 2, 334.0),
    Sketcher.Constraint("DistanceY", 18, 3, 12, 2, 25.0),
    Sketcher.Constraint("DistanceX", 16, 3, 35, 3, 306.5),
    Sketcher.Constraint("DistanceX", -1, 1, 16, 3, 24.25),
    Sketcher.Constraint("DistanceY", -1, 1, 18, 3, 110.25),
    Sketcher.Constraint("DistanceY", -1, 1, 17, 3, 65.725),
    Sketcher.Constraint("DistanceY", 4, 2, 8, 2, 44.525),
    Sketcher.Constraint("DistanceY", -1, 1, 4, 2, 47.4625),
])
pocket7 = body.newObject("PartDesign::Pocket", "Pocket006")
pocket7.Profile = sketch9
pocket7.Type = "ThroughAll"

sketch10 = body.newObject("Sketcher::SketchObject", "Sketch009")
sketch10.AttachmentSupport = (doc.getObject("XY_Plane"), [""])
sketch10.MapMode = "FlatFace"
sketch10.AttachmentOffset = App.Placement(App.Vector(0, 0, 6.5), App.Rotation())
add_polygon(sketch10, [(189, 91), (182.5, 91), (182.5, 83), (189, 83)])
add_polygon(sketch10, [(189, 68), (182.5, 68), (182.5, 60), (189, 60)])
sketch10.addGeometry(Part.Circle(App.Vector(185.8, 75.5, 0), App.Vector(0, 0, 1), 2.2), False)
add_polygon(sketch10, [(222, 52), (214, 52), (214, 45.5), (222, 45.5)])
add_polygon(sketch10, [(245, 52), (237, 52), (237, 45.5), (245, 45.5)])
sketch10.addGeometry(Part.Circle(App.Vector(229.5, 48.7, 0), App.Vector(0, 0, 1), 2.2), False)
sketch10.addConstraint([
    Sketcher.Constraint("Horizontal", 0),
    Sketcher.Constraint("Vertical", 1),
    Sketcher.Constraint("Horizontal", 2),
    Sketcher.Constraint("Vertical", 3),
    Sketcher.Constraint("Horizontal", 4),
    Sketcher.Constraint("Vertical", 5),
    Sketcher.Constraint("Horizontal", 6),
    Sketcher.Constraint("Vertical", 7),
    Sketcher.Constraint("Horizontal", 9),
    Sketcher.Constraint("Vertical", 10),
    Sketcher.Constraint("Horizontal", 11),
    Sketcher.Constraint("Vertical", 12),
    Sketcher.Constraint("Horizontal", 13),
    Sketcher.Constraint("Vertical", 14),
    Sketcher.Constraint("Horizontal", 15),
    Sketcher.Constraint("Vertical", 16),
    Sketcher.Constraint("Equal", 8, 17),
    Sketcher.Constraint("Horizontal", 12, 2, 13, 2),
    Sketcher.Constraint("Horizontal", 11, 2, 14, 2),
    Sketcher.Constraint("Vertical", 1, 2, 4, 2),
    Sketcher.Constraint("Vertical", 3, 2, 6, 2),
    Sketcher.Constraint("Equal", 11, 13),
    Sketcher.Constraint("Equal", 15, 1),
    Sketcher.Constraint("Equal", 3, 5),
    Sketcher.Constraint("Equal", 6, 10),
    Sketcher.Constraint("Diameter", 8, 4.5),
    Sketcher.Constraint("DistanceX", 9, 2, 9, 1, 8.0),
    Sketcher.Constraint("DistanceX", 0, 2, 0, 1, 6.5),
    Sketcher.Constraint("DistanceY", 4, 2, 1, 2, 15.0),
    Sketcher.Constraint("DistanceX", 6, 2, 9, 2, 25.0),
    Sketcher.Constraint("DistanceY", 9, 2, 6, 2, 8.0),
    Sketcher.Constraint("DistanceX", 12, 2, 13, 2, 15.0),
    Sketcher.Constraint("DistanceY", 8, 3, 1, 2, 7.5),
    Sketcher.Constraint("DistanceX", 11, 2, 17, 3, 7.5),
    Sketcher.Constraint("DistanceX", -1, 1, 2, 2, 189.0),
    Sketcher.Constraint("DistanceX", -1, 1, 8, 3, 185.75),
    Sketcher.Constraint("DistanceY", -1, 1, 8, 3, 75.49),
    Sketcher.Constraint("DistanceY", -1, 1, 17, 3, 48.74),
])
pocket8 = body.newObject("PartDesign::Pocket", "Pocket007")
pocket8.Profile = sketch10
pocket8.Type = "ThroughAll"

sketch11 = body.newObject("Sketcher::SketchObject", "Sketch010")
sketch11.AttachmentSupport = (doc.getObject("XY_Plane"), [""])
sketch11.MapMode = "FlatFace"
sketch11.AttachmentOffset = App.Placement(App.Vector(0, 0, 6.5), App.Rotation())
add_polygon(sketch11, [(170, 54), (40, 54), (36, 50), (36, 18), (40, 14), (170, 14), (174, 18), (174, 50)])
add_polygon(sketch11, [(316, 37), (201, 37), (197, 33), (197, 18), (201, 14), (316, 14), (320, 18), (320, 33)])
sketch11.addConstraint([
    Sketcher.Constraint("Horizontal", 0),
    Sketcher.Constraint("Vertical", 2),
    Sketcher.Constraint("Horizontal", 4),
    Sketcher.Constraint("Vertical", 6),
    Sketcher.Constraint("Horizontal", 8),
    Sketcher.Constraint("Vertical", 10),
    Sketcher.Constraint("Horizontal", 12),
    Sketcher.Constraint("Vertical", 14),
    Sketcher.Constraint("Perpendicular", 1, 3),
    Sketcher.Constraint("Perpendicular", 3, 5),
    Sketcher.Constraint("Perpendicular", 5, 7),
    Sketcher.Constraint("Perpendicular", 7, 9),
    Sketcher.Constraint("Perpendicular", 9, 11),
    Sketcher.Constraint("Perpendicular", 11, 13),
    Sketcher.Constraint("Perpendicular", 13, 15),
    Sketcher.Constraint("Horizontal", 2, 2, 5, 2),
    Sketcher.Constraint("Horizontal", 1, 2, 6, 2),
    Sketcher.Constraint("Horizontal", 5, 2, 10, 2),
    Sketcher.Constraint("Horizontal", 4, 2, 11, 2),
    Sketcher.Constraint("Horizontal", 10, 2, 13, 2),
    Sketcher.Constraint("Horizontal", 9, 2, 14, 2),
    Sketcher.Constraint("Vertical", 0, 2, 3, 2),
    Sketcher.Constraint("Vertical", 4, 2, 7, 2),
    Sketcher.Constraint("Vertical", 8, 2, 11, 2),
    Sketcher.Constraint("DistanceX", 1, 2, 0, 2, 4.0),
    Sketcher.Constraint("DistanceY", 3, 2, 0, 2, 40.0),
    Sketcher.Constraint("DistanceX", 0, 2, 0, 1, 131.0),
    Sketcher.Constraint("DistanceX", 8, 2, 8, 1, 114.5),
    Sketcher.Constraint("DistanceX", -1, 1, 8, 2, 201.0),
    Sketcher.Constraint("DistanceX", 5, 2, 12, 2, 141.0),
    Sketcher.Constraint("DistanceY", 10, 2, 10, 1, 15.99),
    Sketcher.Constraint("DistanceY", -1, 1, 0, 2, 53.5),
])
pocket9 = body.newObject("PartDesign::Pocket", "Pocket008")
pocket9.Profile = sketch11
pocket9.Type = "ThroughAll"

sketch12 = body.newObject("Sketcher::SketchObject", "Sketch011")
sketch12.AttachmentSupport = (doc.getObject("XY_Plane"), [""])
sketch12.MapMode = "FlatFace"
sketch12.AttachmentOffset = App.Placement(App.Vector(0, 0, 6.5), App.Rotation())
add_polygon(sketch12, [(141, 80), (134, 80), (134, 72), (141, 72)])
sketch12.addConstraint([
    Sketcher.Constraint("Horizontal", 0),
    Sketcher.Constraint("Vertical", 1),
    Sketcher.Constraint("Horizontal", 2),
    Sketcher.Constraint("Vertical", 3),
    Sketcher.Constraint("DistanceY", 1, 2, 1, 1, 8.0),
    Sketcher.Constraint("DistanceX", 0, 2, 0, 1, 6.5),
    Sketcher.Constraint("DistanceY", -1, 1, 0, 2, 80.0),
    Sketcher.Constraint("DistanceX", -1, 1, 0, 2, 134.25),
])
pocket10 = body.newObject("PartDesign::Pocket", "Pocket009")
pocket10.Profile = sketch12
pocket10.Type = "ThroughAll"

doc.recompute()
